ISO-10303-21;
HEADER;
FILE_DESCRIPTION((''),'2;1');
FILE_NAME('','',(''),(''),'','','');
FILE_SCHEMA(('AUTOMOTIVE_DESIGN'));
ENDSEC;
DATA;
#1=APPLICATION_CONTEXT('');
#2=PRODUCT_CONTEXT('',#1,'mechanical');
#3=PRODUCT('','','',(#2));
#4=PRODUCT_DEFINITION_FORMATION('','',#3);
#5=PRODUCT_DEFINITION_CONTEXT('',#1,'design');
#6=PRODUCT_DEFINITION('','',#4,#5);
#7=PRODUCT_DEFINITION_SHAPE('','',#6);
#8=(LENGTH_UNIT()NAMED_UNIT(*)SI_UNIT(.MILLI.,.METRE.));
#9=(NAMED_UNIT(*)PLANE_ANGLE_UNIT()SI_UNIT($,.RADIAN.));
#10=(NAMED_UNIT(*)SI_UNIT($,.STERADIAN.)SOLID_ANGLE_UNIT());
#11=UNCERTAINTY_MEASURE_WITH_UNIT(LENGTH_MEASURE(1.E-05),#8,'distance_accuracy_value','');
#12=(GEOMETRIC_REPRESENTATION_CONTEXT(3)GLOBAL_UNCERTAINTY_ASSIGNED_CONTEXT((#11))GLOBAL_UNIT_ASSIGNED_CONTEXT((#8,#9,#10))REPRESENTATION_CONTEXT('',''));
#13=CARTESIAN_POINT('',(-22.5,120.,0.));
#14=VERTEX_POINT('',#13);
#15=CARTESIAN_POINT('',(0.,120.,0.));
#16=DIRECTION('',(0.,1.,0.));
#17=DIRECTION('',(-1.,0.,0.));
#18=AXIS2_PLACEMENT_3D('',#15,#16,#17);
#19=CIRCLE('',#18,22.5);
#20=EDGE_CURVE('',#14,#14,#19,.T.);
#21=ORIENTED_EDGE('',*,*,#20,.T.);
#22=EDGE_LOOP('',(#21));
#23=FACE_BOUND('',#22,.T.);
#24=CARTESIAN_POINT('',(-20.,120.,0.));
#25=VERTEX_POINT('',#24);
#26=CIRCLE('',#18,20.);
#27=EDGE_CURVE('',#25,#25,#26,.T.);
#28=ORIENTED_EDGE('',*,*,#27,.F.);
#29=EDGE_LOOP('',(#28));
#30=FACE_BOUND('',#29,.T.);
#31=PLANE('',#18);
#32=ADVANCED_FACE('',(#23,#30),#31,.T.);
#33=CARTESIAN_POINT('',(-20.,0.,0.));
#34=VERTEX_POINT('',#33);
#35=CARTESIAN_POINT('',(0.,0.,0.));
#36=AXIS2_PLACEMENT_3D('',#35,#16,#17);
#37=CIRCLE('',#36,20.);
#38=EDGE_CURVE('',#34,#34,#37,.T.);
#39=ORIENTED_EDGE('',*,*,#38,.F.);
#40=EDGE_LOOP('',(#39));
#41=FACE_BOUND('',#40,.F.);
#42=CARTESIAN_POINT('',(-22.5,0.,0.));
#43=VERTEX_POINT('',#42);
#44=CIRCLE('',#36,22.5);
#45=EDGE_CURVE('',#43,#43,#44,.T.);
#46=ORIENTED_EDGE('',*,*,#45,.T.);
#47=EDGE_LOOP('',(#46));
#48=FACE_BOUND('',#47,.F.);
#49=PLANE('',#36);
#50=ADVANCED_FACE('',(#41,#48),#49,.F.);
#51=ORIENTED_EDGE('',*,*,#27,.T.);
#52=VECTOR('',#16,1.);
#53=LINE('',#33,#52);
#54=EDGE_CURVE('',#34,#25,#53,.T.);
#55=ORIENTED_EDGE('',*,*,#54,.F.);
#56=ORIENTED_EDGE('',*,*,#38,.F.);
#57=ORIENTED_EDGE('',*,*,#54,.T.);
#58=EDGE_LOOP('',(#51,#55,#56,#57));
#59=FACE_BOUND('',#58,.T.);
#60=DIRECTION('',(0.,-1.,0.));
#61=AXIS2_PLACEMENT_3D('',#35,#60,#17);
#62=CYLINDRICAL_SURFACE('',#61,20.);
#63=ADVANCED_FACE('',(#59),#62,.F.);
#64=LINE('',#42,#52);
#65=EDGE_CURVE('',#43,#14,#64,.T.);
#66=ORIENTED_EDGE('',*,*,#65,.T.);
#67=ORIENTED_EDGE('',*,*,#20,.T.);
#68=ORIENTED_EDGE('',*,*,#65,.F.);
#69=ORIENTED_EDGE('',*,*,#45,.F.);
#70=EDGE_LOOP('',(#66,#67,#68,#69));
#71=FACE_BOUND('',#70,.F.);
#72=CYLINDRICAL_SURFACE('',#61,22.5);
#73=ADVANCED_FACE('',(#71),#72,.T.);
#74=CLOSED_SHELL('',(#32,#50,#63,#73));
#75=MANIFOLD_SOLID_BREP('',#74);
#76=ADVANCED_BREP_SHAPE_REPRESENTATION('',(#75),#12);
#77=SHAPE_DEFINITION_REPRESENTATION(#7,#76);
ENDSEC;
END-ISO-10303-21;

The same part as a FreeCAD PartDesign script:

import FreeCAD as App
import Part
import Sketcher

V = App.Vector

doc = App.newDocument("Part")
body = doc.addObject("PartDesign::Body", "Body")

# Sketch on XZ plane
sketch1 = body.newObject("Sketcher::SketchObject", "Sketch")
sketch1.AttachmentSupport = (doc.getObject("XZ_Plane"), [""])
sketch1.MapMode = "FlatFace"
sketch1.addGeometry([
    Part.Circle(V(0, 0, 0), V(0, 0, 1), 22),
    Part.Circle(V(0, 0, 0), V(0, 0, 1), 20),
], False)
sketch1.addConstraint([
    Sketcher.Constraint("Coincident", 0, 3, -1, 1),
    Sketcher.Constraint("Coincident", 1, 3, -1, 1),
    Sketcher.Constraint("Diameter", 0, 45.0),
    Sketcher.Constraint("Diameter", 1, 40.0),
])
pad1 = body.newObject("PartDesign::Pad", "Pad")
pad1.Profile = sketch1
pad1.Length = 120
pad1.Reversed = True

doc.recompute()
